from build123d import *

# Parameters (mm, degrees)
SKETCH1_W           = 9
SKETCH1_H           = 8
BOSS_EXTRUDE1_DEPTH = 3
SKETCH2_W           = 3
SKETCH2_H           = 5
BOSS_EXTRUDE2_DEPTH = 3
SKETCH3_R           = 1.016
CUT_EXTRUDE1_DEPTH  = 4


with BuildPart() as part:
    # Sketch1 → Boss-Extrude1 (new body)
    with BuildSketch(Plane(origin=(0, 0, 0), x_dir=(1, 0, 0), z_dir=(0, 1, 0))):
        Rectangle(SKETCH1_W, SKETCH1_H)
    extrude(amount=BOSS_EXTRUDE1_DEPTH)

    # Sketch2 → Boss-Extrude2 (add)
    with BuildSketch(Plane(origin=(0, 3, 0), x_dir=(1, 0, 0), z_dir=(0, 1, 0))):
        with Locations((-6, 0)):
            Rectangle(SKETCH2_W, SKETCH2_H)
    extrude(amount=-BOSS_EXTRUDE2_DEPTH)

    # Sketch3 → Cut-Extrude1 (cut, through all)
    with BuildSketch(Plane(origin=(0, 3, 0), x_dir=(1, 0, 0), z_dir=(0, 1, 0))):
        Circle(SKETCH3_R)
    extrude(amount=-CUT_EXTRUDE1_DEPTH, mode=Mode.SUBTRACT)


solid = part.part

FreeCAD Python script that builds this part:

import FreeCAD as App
import Part
import Sketcher
from FreeCAD import Vector
Q = App.Units.Quantity

doc = App.newDocument("Part")
params = doc.addObject("Spreadsheet::Sheet", "Params")
for row, (alias, value) in enumerate([
    ("sketch1_width", "9 mm"),
    ("sketch1_height", "8 mm"),
    ("pad1_length", "3 mm"),
    ("sketch2_width", "3 mm"),
    ("sketch2_height", "5 mm"),
    ("pad2_length", "3 mm"),
], start=1):
    params.set(f"A{row}", alias)
    params.set(f"B{row}", "=" + value)
    params.setAlias(f"B{row}", alias)

body = doc.addObject("PartDesign::Body", "Body")

# Sketch on XZ plane
sketch1 = body.newObject("Sketcher::SketchObject", "Sketch")
sketch1.AttachmentSupport = (doc.getObject("XZ_Plane"), [""])
sketch1.MapMode = "FlatFace"
sketch1.addGeometry(Part.LineSegment(Vector(-4.5, -4, 0), Vector(-4.5, 4, 0)), False)
sketch1.addGeometry(Part.LineSegment(Vector(-4.5, 4, 0), Vector(4.5, 4, 0)), False)
sketch1.addGeometry(Part.LineSegment(Vector(4.5, 4, 0), Vector(4.5, -4, 0)), False)
sketch1.addGeometry(Part.LineSegment(Vector(4.5, -4, 0), Vector(-4.5, -4, 0)), False)
sketch1.addConstraint(Sketcher.Constraint("Coincident", 0, 2, 1, 1))
sketch1.addConstraint(Sketcher.Constraint("Coincident", 1, 2, 2, 1))
sketch1.addConstraint(Sketcher.Constraint("Coincident", 2, 2, 3, 1))
sketch1.addConstraint(Sketcher.Constraint("Coincident", 3, 2, 0, 1))
sketch1.addConstraint(Sketcher.Constraint("Vertical", 0))
sketch1.addConstraint(Sketcher.Constraint("Horizontal", 1))
sketch1.addConstraint(Sketcher.Constraint("Vertical", 2))
sketch1.addConstraint(Sketcher.Constraint("Horizontal", 3))
sketch1.addConstraint(Sketcher.Constraint("Symmetric", 0, 2, 2, 2, -1, 1))
sketch1.addConstraint(Sketcher.Constraint("DistanceX", 1, 1, 1, 2, Q("9 mm")))
sketch1.addConstraint(Sketcher.Constraint("DistanceY", 0, 1, 0, 2, Q("8 mm")))
sketch1.setExpression("Constraints[9]", "Params.sketch1_width")
sketch1.setExpression("Constraints[10]", "Params.sketch1_height")
pad1 = body.newObject("PartDesign::Pad", "Pad")
pad1.Profile = sketch1
pad1.setExpression("Length", "Params.pad1_length")
pad1.Reversed = True

# Sketch on XZ plane
sketch2 = body.newObject("Sketcher::SketchObject", "Sketch001")
sketch2.AttachmentSupport = (doc.getObject("XZ_Plane"), [""])
sketch2.MapMode = "FlatFace"
sketch2.AttachmentOffset = App.Placement(Vector(0, 0, -3), App.Rotation())
sketch2.addGeometry(Part.LineSegment(Vector(-7.5, -2.5, 0), Vector(-7.5, 2.5, 0)), False)
sketch2.addGeometry(Part.LineSegment(Vector(-7.5, 2.5, 0), Vector(-4.5, 2.5, 0)), False)
sketch2.addGeometry(Part.LineSegment(Vector(-4.5, 2.5, 0), Vector(-4.5, -2.5, 0)), False)
sketch2.addGeometry(Part.LineSegment(Vector(-4.5, -2.5, 0), Vector(-7.5, -2.5, 0)), False)
sketch2.addConstraint(Sketcher.Constraint("Coincident", 0, 2, 1, 1))
sketch2.addConstraint(Sketcher.Constraint("Coincident", 1, 2, 2, 1))
sketch2.addConstraint(Sketcher.Constraint("Coincident", 2, 2, 3, 1))
sketch2.addConstraint(Sketcher.Constraint("Coincident", 3, 2, 0, 1))
sketch2.addConstraint(Sketcher.Constraint("Vertical", 0))
sketch2.addConstraint(Sketcher.Constraint("Horizontal", 1))
sketch2.addConstraint(Sketcher.Constraint("Vertical", 2))
sketch2.addConstraint(Sketcher.Constraint("Horizontal", 3))
sketch2.addConstraint(Sketcher.Constraint("DistanceX", 1, 1, 1, 2, Q("3 mm")))
sketch2.addConstraint(Sketcher.Constraint("DistanceY", 0, 1, 0, 2, Q("5 mm")))
sketch2.addConstraint(Sketcher.Constraint("DistanceX", 0, 2, -1, 1, Q("7.5 mm")))
sketch2.addConstraint(Sketcher.Constraint("DistanceY", -1, 1, 0, 2, Q("2.5 mm")))
sketch2.setExpression("Constraints[8]", "Params.sketch2_width")
sketch2.setExpression("Constraints[9]", "Params.sketch2_height")
pad2 = body.newObject("PartDesign::Pad", "Pad001")
pad2.Profile = sketch2
pad2.setExpression("Length", "Params.pad2_length")

# Sketch on XZ plane
sketch3 = body.newObject("Sketcher::SketchObject", "Sketch002")
sketch3.AttachmentSupport = (doc.getObject("XZ_Plane"), [""])
sketch3.MapMode = "FlatFace"
sketch3.AttachmentOffset = App.Placement(Vector(0, 0, -3), App.Rotation())
sketch3.addGeometry(Part.Circle(Vector(0, 0, 0), Vector(0, 0, 1), 1.016), False)
sketch3.addConstraint(Sketcher.Constraint("Coincident", 0, 3, -1, 1))
sketch3.addConstraint(Sketcher.Constraint("Diameter", 0, Q("2.032 mm")))
pocket1 = body.newObject("PartDesign::Pocket", "Pocket")
pocket1.Profile = sketch3
pocket1.Type = "ThroughAll"
pocket1.Reversed = True

doc.recompute()
